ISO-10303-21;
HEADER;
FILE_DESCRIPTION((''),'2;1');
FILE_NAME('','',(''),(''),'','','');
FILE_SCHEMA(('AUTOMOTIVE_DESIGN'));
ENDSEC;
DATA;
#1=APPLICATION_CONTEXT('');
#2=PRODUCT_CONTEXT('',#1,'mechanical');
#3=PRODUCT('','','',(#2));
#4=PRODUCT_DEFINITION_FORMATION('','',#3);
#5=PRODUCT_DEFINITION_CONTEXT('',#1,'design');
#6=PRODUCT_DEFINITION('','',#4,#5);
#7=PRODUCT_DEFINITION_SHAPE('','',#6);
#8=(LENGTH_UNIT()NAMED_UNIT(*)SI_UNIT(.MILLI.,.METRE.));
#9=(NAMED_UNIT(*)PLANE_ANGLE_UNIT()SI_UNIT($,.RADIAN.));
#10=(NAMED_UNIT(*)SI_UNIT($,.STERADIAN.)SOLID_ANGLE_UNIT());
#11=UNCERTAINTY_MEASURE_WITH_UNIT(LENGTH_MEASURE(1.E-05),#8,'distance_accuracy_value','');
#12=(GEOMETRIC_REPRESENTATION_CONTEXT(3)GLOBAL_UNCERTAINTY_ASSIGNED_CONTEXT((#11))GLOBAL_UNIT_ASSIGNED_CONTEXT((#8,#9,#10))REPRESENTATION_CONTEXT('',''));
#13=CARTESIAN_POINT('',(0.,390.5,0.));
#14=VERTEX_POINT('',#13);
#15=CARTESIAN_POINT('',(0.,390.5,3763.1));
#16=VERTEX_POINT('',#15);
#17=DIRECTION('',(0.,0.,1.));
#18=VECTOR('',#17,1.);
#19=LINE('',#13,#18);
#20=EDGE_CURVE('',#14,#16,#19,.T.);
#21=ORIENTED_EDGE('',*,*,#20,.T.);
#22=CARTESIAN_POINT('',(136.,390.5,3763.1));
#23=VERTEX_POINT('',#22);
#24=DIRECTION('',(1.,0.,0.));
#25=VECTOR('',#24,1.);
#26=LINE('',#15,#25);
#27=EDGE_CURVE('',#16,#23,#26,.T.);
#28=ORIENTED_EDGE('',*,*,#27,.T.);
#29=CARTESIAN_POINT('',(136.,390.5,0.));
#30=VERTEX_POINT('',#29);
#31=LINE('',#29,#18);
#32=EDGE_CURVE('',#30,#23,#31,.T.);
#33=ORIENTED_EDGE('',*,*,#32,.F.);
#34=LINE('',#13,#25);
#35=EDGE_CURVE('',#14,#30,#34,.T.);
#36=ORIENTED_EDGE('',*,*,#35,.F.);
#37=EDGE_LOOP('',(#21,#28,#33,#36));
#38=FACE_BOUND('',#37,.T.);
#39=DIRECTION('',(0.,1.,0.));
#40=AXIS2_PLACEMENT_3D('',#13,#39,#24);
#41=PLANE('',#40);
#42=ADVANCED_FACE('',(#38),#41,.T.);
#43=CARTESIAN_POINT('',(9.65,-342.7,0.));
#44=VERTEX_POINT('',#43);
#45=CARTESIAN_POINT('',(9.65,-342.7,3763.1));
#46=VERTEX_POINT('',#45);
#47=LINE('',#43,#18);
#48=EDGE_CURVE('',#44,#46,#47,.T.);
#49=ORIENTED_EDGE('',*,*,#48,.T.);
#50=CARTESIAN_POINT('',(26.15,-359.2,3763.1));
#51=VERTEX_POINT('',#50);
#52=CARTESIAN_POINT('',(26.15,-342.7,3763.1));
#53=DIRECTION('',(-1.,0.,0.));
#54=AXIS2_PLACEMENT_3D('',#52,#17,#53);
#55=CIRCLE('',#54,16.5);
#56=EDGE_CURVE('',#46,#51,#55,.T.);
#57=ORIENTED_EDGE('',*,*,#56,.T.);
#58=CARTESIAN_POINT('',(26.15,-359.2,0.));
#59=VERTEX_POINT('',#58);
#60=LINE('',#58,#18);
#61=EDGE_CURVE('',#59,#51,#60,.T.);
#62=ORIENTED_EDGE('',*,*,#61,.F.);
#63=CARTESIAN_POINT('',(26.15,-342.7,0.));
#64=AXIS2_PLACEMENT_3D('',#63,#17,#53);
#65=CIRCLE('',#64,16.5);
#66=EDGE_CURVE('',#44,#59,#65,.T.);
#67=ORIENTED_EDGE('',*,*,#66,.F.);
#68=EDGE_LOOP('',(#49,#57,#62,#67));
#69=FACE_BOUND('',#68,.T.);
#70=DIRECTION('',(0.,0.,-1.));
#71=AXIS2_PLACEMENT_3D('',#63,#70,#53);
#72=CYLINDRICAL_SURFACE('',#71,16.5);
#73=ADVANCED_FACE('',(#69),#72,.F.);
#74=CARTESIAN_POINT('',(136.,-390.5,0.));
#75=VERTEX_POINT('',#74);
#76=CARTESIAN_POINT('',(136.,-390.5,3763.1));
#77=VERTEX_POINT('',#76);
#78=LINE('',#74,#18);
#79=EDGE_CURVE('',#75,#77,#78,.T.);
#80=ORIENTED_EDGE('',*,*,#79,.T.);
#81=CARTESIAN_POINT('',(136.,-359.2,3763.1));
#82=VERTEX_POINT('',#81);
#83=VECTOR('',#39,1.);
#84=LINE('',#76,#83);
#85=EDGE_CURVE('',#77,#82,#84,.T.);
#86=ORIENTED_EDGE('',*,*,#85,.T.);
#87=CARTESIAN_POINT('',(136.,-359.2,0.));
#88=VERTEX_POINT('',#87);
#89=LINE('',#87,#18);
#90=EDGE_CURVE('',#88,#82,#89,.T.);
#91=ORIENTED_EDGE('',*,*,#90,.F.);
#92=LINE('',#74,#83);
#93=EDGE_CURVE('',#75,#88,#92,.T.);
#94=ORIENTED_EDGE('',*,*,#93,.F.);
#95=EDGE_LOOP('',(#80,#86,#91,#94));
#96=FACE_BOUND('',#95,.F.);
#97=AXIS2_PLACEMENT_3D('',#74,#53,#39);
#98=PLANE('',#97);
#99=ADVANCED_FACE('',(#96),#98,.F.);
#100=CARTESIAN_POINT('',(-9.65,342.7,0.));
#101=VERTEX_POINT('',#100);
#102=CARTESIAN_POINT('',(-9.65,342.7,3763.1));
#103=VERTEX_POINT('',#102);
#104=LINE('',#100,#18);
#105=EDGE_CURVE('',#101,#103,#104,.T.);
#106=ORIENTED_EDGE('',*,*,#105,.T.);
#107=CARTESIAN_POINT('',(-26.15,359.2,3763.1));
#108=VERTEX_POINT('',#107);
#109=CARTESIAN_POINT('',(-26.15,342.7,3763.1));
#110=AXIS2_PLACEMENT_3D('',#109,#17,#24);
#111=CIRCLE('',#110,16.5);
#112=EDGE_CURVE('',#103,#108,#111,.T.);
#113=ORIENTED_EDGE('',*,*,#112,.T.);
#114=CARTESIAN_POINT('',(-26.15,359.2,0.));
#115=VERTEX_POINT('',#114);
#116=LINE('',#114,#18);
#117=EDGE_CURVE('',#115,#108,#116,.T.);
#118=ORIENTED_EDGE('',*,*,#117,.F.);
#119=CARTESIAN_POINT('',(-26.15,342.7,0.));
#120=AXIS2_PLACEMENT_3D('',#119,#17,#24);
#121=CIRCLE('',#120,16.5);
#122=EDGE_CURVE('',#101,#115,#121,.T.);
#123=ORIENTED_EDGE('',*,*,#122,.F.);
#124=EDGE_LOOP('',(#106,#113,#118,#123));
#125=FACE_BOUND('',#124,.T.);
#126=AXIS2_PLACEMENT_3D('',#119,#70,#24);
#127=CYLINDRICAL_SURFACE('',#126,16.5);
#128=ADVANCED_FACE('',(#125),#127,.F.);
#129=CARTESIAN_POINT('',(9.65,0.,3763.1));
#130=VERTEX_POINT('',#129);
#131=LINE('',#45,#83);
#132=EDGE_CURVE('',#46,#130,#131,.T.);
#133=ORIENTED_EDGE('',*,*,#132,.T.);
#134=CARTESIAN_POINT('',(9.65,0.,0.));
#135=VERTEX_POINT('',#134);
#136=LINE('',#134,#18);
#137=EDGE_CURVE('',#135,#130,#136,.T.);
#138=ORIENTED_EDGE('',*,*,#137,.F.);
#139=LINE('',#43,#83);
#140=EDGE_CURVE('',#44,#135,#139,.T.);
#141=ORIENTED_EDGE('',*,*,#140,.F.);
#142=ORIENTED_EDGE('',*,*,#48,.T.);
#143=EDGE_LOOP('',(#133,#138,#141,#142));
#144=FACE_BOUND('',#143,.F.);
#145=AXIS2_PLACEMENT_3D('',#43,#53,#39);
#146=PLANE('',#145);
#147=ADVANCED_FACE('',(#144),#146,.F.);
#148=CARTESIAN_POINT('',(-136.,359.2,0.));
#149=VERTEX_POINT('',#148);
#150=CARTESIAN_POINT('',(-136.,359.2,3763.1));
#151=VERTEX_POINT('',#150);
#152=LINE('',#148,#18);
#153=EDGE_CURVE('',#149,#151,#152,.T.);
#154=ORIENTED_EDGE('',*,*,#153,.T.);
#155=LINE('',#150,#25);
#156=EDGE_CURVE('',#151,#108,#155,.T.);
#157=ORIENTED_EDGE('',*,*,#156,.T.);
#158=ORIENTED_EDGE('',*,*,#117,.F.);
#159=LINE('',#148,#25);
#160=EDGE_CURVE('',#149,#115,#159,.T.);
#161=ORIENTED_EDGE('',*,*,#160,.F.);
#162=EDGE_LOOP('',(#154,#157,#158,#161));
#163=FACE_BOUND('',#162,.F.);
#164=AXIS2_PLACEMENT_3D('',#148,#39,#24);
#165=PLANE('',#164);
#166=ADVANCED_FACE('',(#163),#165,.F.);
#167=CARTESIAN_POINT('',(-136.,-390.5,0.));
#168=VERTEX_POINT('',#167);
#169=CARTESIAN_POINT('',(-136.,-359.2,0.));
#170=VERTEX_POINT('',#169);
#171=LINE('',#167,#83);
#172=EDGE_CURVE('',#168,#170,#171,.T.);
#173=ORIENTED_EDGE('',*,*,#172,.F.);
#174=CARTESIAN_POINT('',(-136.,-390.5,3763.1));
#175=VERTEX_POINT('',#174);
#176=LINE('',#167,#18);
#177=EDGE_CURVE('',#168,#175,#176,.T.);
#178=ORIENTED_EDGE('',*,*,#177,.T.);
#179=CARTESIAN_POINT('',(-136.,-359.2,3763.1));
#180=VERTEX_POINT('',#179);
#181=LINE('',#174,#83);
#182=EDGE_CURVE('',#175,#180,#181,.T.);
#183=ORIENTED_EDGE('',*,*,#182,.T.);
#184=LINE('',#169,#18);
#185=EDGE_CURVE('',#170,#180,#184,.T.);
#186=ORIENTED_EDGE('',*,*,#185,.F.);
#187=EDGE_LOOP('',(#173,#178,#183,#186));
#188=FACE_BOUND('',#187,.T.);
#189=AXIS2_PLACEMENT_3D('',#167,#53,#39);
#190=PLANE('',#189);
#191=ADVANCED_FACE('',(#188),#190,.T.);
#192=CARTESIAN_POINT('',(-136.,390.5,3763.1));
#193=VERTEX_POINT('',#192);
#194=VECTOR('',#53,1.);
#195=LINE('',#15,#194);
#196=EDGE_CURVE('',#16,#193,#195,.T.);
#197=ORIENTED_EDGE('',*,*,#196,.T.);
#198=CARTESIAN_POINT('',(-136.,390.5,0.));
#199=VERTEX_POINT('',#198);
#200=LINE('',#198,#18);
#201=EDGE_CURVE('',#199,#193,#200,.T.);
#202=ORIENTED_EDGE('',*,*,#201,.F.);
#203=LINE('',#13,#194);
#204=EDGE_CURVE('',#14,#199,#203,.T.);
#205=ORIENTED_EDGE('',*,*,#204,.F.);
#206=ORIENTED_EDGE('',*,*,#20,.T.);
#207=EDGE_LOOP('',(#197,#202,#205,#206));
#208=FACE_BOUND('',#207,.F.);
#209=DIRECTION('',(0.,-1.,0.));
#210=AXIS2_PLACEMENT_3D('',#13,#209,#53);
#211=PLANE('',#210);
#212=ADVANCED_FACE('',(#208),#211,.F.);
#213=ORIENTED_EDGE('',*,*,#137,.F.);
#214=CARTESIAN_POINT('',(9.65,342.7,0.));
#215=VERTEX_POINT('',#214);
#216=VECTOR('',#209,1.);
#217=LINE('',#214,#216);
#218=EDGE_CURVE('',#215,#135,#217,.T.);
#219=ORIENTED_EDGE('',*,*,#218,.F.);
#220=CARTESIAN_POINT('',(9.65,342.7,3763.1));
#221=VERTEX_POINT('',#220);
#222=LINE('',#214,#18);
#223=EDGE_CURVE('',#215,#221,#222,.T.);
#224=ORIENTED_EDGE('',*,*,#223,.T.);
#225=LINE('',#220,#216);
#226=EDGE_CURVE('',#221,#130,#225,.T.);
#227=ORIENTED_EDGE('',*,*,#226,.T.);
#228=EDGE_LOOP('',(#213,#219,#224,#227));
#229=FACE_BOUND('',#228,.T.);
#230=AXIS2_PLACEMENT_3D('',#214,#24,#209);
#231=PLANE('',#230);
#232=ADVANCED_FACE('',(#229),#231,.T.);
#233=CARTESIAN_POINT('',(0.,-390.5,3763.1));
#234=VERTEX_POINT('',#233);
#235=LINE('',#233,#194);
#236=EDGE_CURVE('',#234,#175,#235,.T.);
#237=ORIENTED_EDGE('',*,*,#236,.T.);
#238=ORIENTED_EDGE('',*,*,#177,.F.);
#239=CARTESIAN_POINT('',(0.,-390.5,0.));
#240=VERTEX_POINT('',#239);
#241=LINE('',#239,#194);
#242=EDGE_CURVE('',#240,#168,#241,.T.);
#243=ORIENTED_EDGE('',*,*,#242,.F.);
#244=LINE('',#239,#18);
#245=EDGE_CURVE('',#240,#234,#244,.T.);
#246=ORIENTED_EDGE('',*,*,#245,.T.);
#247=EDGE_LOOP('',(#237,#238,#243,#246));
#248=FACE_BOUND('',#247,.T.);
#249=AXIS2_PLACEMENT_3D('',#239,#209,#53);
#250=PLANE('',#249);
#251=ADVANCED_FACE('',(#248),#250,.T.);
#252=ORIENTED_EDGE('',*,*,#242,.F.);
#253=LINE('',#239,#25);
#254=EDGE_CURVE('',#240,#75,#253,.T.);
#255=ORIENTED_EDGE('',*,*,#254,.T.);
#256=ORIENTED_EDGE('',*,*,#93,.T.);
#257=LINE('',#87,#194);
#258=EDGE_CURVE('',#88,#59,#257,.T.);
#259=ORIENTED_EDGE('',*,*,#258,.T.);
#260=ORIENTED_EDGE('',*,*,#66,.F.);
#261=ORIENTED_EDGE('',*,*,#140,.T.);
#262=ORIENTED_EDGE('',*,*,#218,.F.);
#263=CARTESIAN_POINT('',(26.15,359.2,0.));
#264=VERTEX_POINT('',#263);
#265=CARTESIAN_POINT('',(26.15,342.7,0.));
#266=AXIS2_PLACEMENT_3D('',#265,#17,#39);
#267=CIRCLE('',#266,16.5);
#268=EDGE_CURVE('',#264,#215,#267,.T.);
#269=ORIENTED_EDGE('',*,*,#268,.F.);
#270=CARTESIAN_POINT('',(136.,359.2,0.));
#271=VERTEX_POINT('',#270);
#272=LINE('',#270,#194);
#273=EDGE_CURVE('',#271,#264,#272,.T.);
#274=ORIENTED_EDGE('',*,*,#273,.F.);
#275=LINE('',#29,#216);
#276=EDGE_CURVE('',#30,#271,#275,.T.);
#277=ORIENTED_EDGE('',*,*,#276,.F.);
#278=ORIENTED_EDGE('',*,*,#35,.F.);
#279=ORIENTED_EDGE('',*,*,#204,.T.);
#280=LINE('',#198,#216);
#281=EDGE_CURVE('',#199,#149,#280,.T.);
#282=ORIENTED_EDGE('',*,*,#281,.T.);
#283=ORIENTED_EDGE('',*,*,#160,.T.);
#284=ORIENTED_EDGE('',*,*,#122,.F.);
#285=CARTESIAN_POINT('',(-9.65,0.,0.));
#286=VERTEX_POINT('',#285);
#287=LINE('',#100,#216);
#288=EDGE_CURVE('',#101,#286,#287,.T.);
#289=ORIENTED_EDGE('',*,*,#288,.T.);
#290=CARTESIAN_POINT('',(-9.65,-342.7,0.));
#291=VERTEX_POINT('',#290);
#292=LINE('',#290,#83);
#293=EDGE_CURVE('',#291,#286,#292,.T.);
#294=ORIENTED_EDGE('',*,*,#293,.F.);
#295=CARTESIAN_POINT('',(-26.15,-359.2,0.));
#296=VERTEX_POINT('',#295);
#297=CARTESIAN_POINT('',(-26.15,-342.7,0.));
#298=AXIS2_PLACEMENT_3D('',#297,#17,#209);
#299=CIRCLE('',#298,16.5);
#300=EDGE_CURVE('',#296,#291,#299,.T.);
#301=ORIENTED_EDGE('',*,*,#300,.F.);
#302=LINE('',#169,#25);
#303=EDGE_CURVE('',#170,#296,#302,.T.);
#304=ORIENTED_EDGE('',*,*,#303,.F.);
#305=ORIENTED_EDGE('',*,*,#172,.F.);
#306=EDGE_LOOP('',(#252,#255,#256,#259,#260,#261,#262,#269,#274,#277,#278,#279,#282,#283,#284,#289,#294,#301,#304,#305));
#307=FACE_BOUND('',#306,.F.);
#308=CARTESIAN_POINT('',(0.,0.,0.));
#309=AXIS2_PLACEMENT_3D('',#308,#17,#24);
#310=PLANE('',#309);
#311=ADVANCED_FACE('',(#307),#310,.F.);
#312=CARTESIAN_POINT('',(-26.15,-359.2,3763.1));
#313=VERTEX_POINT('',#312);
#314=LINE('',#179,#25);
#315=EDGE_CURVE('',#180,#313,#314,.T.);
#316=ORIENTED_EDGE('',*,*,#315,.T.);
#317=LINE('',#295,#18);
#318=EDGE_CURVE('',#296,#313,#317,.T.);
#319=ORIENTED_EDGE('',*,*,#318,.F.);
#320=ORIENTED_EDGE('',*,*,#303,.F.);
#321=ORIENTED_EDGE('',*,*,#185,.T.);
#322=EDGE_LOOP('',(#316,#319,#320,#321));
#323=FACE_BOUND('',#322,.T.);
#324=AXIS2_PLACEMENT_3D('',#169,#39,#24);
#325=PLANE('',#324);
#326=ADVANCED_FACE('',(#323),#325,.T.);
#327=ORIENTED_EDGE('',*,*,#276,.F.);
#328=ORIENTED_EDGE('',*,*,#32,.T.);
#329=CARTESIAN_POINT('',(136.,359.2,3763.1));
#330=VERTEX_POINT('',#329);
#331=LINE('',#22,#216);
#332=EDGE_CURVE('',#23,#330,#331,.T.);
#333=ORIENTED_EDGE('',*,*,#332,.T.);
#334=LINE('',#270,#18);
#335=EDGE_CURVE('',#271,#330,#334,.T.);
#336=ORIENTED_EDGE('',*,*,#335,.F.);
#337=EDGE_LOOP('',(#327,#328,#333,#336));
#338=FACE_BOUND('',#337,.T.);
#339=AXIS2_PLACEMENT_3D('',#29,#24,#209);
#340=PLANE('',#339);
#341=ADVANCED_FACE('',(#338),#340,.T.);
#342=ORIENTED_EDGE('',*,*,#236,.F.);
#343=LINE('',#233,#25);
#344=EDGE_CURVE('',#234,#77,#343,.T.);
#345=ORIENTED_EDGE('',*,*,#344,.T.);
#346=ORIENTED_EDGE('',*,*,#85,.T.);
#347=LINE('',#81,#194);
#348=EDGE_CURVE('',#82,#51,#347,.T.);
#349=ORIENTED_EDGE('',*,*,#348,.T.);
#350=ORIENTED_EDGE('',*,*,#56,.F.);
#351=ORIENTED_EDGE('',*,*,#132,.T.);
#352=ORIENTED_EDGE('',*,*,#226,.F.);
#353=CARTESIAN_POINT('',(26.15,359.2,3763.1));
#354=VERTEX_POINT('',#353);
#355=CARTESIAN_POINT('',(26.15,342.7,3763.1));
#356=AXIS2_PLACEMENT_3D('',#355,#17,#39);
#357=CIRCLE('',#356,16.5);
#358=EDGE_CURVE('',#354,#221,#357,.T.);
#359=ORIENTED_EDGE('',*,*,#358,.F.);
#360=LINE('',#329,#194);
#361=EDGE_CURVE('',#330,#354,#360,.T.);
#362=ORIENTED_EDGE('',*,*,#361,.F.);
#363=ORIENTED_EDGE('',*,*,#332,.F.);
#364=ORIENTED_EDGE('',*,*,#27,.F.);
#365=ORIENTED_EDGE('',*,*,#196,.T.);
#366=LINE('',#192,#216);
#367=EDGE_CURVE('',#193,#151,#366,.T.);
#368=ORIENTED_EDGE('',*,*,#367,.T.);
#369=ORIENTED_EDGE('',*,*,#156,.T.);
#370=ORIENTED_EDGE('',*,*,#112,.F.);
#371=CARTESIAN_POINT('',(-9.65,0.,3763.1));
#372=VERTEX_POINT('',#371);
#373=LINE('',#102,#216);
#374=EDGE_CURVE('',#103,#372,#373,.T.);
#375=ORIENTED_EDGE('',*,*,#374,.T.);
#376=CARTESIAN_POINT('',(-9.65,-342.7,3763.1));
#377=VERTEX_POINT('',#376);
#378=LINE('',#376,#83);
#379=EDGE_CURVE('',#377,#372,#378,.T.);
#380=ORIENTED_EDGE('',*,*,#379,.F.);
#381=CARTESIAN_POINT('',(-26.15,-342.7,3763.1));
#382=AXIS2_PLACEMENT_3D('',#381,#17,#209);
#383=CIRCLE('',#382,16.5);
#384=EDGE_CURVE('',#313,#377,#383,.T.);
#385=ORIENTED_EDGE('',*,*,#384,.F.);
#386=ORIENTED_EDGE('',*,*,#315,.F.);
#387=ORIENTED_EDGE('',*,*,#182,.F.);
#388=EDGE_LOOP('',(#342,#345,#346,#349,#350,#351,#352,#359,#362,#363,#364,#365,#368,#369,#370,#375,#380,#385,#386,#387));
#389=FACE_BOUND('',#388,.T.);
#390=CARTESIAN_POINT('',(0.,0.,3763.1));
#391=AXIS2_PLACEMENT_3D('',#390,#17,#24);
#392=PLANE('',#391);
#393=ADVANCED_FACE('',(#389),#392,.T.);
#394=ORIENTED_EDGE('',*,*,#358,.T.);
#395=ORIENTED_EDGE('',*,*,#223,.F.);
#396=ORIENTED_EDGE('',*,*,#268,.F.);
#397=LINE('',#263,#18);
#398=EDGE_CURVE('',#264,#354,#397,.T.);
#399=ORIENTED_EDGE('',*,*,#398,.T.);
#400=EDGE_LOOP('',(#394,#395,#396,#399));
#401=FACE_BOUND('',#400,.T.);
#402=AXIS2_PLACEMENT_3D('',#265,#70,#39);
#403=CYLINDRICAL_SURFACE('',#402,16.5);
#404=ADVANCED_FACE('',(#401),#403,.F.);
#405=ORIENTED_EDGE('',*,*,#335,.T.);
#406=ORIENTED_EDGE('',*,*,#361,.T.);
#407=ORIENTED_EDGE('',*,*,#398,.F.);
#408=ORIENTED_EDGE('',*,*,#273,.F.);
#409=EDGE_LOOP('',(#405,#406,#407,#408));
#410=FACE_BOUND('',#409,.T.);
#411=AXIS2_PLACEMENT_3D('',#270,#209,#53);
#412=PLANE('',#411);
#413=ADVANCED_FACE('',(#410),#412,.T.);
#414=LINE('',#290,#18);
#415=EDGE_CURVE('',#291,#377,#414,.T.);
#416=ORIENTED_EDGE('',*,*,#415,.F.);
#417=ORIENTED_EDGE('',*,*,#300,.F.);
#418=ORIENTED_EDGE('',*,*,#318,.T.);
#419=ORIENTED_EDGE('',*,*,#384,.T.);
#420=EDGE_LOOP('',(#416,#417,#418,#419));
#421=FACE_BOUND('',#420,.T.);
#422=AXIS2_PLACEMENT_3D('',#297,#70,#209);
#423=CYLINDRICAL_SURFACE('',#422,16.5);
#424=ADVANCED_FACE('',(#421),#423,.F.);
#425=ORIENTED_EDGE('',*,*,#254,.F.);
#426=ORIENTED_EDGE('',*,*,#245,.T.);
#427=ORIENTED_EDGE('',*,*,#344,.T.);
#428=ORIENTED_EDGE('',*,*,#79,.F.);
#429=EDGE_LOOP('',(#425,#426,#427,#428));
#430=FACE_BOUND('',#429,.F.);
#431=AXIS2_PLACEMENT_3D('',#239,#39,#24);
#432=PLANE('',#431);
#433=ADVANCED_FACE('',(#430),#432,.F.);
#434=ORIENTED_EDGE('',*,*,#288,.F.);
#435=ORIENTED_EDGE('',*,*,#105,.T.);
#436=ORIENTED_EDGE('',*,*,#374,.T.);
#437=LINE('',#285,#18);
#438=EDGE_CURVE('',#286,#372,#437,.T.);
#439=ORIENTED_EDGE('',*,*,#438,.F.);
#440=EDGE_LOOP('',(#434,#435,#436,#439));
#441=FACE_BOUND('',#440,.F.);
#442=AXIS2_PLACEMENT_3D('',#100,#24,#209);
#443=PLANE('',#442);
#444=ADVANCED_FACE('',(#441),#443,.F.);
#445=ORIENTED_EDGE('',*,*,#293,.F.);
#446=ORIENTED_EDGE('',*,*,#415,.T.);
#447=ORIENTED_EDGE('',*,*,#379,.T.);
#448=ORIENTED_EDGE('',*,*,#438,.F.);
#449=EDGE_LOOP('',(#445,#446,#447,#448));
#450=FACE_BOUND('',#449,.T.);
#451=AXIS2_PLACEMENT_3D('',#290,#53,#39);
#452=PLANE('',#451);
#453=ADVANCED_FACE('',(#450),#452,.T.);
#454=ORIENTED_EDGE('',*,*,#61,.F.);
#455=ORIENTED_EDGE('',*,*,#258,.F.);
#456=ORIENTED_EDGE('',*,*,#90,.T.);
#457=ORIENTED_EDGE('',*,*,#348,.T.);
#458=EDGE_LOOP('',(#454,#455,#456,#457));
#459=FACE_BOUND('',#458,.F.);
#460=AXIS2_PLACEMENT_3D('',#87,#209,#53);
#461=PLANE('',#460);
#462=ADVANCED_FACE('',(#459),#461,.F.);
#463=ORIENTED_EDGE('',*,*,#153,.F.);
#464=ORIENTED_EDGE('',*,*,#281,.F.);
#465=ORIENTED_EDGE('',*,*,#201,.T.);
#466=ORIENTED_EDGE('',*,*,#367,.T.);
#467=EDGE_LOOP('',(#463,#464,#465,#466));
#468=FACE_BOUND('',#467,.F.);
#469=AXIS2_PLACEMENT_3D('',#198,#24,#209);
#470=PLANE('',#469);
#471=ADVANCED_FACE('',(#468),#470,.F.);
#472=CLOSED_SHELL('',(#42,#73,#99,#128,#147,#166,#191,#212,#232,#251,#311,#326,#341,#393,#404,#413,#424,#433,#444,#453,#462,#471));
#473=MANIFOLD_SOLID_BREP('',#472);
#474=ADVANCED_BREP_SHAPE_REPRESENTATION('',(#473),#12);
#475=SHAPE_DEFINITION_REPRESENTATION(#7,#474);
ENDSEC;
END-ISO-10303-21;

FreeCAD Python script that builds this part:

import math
import FreeCAD as App
import Part
import Sketcher

V = App.Vector
Q = App.Units.Quantity

doc = App.newDocument("Part")
body = doc.addObject("PartDesign::Body", "Body")

# Sketch on XY plane
sketch1 = body.newObject("Sketcher::SketchObject", "Sketch")
sketch1.AttachmentSupport = (doc.getObject("XY_Plane"), [""])
sketch1.MapMode = "FlatFace"
sketch1.addGeometry([
    Part.LineSegment(V(-136, -359, 0), V(-136, -390, 0)),  # 0
    Part.LineSegment(V(-136, -390, 0), V(136, -390, 0)),  # 1
    Part.LineSegment(V(136, -390, 0), V(136, -359, 0)),  # 2
    Part.LineSegment(V(136, -359, 0), V(26, -359, 0)),  # 3
    Part.ArcOfCircle(Part.Circle(V(26, -343, 0), V(0, 0, 1), 16), math.radians(180), math.radians(270)),  # 4
    Part.LineSegment(V(10, -343, 0), V(10, 343, 0)),  # 5
    Part.ArcOfCircle(Part.Circle(V(26, 343, 0), V(0, 0, 1), 16), math.radians(90), math.radians(180)),  # 6
    Part.LineSegment(V(26, 359, 0), V(136, 359, 0)),  # 7
    Part.LineSegment(V(136, 359, 0), V(136, 390, 0)),  # 8
    Part.LineSegment(V(136, 390, 0), V(-136, 390, 0)),  # 9
    Part.LineSegment(V(-136, 390, 0), V(-136, 359, 0)),  # 10
    Part.LineSegment(V(-136, 359, 0), V(-26, 359, 0)),  # 11
    Part.ArcOfCircle(Part.Circle(V(-26, 343, 0), V(0, 0, 1), 16), math.radians(0), math.radians(90)),  # 12
    Part.LineSegment(V(-10, 343, 0), V(-10, -343, 0)),  # 13
    Part.ArcOfCircle(Part.Circle(V(-26, -343, 0), V(0, 0, 1), 16), math.radians(-90), math.radians(0)),  # 14
    Part.LineSegment(V(-26, -359, 0), V(-136, -359, 0)),  # 15
], False)
sketch1.addConstraint([
    Sketcher.Constraint("Coincident", 0, 2, 1, 1),
    Sketcher.Constraint("Coincident", 1, 2, 2, 1),
    Sketcher.Constraint("Coincident", 2, 2, 3, 1),
    Sketcher.Constraint("Tangent", 3, 2, 4, 2),
    Sketcher.Constraint("Tangent", 4, 1, 5, 1),
    Sketcher.Constraint("Tangent", 5, 2, 6, 2),
    Sketcher.Constraint("Tangent", 6, 1, 7, 1),
    Sketcher.Constraint("Coincident", 7, 2, 8, 1),
    Sketcher.Constraint("Coincident", 8, 2, 9, 1),
    Sketcher.Constraint("Coincident", 9, 2, 10, 1),
    Sketcher.Constraint("Coincident", 10, 2, 11, 1),
    Sketcher.Constraint("Tangent", 11, 2, 12, 2),
    Sketcher.Constraint("Tangent", 12, 1, 13, 1),
    Sketcher.Constraint("Tangent", 13, 2, 14, 2),
    Sketcher.Constraint("Tangent", 14, 1, 15, 1),
    Sketcher.Constraint("Coincident", 15, 2, 0, 1),
    Sketcher.Constraint("Vertical", 0),
    Sketcher.Constraint("Horizontal", 1),
    Sketcher.Constraint("Vertical", 2),
    Sketcher.Constraint("Horizontal", 3),
    Sketcher.Constraint("Vertical", 5),
    Sketcher.Constraint("Horizontal", 7),
    Sketcher.Constraint("Vertical", 8),
    Sketcher.Constraint("Horizontal", 9),
    Sketcher.Constraint("Vertical", 10),
    Sketcher.Constraint("Horizontal", 11),
    Sketcher.Constraint("Vertical", 13),
    Sketcher.Constraint("Horizontal", 15),
    Sketcher.Constraint("Equal", 4, 6),
    Sketcher.Constraint("Equal", 6, 12),
    Sketcher.Constraint("Equal", 12, 14),
    Sketcher.Constraint("Symmetric", 4, 3, 12, 3, -1, 1),
    Sketcher.Constraint("Symmetric", 0, 2, 8, 2, -1, 1),
    Sketcher.Constraint("Symmetric", 7, 2, 10, 2, -2),
    Sketcher.Constraint("Symmetric", 2, 2, 15, 2, -2),
    Sketcher.Constraint("Radius", 4, Q("16.5 mm")),
    Sketcher.Constraint("DistanceY", 0, 2, 0, 1, Q("31.3 mm")),
    Sketcher.Constraint("DistanceX", 0, 2, -1, 1, Q("136 mm")),
    Sketcher.Constraint("DistanceY", 0, 2, -1, 1, Q("390.5 mm")),
    Sketcher.Constraint("DistanceX", -1, 1, 4, 1, Q("9.65 mm")),
])
pad1 = body.newObject("PartDesign::Pad", "Pad")
pad1.Profile = sketch1
pad1.Length = 3763.1

doc.recompute()
